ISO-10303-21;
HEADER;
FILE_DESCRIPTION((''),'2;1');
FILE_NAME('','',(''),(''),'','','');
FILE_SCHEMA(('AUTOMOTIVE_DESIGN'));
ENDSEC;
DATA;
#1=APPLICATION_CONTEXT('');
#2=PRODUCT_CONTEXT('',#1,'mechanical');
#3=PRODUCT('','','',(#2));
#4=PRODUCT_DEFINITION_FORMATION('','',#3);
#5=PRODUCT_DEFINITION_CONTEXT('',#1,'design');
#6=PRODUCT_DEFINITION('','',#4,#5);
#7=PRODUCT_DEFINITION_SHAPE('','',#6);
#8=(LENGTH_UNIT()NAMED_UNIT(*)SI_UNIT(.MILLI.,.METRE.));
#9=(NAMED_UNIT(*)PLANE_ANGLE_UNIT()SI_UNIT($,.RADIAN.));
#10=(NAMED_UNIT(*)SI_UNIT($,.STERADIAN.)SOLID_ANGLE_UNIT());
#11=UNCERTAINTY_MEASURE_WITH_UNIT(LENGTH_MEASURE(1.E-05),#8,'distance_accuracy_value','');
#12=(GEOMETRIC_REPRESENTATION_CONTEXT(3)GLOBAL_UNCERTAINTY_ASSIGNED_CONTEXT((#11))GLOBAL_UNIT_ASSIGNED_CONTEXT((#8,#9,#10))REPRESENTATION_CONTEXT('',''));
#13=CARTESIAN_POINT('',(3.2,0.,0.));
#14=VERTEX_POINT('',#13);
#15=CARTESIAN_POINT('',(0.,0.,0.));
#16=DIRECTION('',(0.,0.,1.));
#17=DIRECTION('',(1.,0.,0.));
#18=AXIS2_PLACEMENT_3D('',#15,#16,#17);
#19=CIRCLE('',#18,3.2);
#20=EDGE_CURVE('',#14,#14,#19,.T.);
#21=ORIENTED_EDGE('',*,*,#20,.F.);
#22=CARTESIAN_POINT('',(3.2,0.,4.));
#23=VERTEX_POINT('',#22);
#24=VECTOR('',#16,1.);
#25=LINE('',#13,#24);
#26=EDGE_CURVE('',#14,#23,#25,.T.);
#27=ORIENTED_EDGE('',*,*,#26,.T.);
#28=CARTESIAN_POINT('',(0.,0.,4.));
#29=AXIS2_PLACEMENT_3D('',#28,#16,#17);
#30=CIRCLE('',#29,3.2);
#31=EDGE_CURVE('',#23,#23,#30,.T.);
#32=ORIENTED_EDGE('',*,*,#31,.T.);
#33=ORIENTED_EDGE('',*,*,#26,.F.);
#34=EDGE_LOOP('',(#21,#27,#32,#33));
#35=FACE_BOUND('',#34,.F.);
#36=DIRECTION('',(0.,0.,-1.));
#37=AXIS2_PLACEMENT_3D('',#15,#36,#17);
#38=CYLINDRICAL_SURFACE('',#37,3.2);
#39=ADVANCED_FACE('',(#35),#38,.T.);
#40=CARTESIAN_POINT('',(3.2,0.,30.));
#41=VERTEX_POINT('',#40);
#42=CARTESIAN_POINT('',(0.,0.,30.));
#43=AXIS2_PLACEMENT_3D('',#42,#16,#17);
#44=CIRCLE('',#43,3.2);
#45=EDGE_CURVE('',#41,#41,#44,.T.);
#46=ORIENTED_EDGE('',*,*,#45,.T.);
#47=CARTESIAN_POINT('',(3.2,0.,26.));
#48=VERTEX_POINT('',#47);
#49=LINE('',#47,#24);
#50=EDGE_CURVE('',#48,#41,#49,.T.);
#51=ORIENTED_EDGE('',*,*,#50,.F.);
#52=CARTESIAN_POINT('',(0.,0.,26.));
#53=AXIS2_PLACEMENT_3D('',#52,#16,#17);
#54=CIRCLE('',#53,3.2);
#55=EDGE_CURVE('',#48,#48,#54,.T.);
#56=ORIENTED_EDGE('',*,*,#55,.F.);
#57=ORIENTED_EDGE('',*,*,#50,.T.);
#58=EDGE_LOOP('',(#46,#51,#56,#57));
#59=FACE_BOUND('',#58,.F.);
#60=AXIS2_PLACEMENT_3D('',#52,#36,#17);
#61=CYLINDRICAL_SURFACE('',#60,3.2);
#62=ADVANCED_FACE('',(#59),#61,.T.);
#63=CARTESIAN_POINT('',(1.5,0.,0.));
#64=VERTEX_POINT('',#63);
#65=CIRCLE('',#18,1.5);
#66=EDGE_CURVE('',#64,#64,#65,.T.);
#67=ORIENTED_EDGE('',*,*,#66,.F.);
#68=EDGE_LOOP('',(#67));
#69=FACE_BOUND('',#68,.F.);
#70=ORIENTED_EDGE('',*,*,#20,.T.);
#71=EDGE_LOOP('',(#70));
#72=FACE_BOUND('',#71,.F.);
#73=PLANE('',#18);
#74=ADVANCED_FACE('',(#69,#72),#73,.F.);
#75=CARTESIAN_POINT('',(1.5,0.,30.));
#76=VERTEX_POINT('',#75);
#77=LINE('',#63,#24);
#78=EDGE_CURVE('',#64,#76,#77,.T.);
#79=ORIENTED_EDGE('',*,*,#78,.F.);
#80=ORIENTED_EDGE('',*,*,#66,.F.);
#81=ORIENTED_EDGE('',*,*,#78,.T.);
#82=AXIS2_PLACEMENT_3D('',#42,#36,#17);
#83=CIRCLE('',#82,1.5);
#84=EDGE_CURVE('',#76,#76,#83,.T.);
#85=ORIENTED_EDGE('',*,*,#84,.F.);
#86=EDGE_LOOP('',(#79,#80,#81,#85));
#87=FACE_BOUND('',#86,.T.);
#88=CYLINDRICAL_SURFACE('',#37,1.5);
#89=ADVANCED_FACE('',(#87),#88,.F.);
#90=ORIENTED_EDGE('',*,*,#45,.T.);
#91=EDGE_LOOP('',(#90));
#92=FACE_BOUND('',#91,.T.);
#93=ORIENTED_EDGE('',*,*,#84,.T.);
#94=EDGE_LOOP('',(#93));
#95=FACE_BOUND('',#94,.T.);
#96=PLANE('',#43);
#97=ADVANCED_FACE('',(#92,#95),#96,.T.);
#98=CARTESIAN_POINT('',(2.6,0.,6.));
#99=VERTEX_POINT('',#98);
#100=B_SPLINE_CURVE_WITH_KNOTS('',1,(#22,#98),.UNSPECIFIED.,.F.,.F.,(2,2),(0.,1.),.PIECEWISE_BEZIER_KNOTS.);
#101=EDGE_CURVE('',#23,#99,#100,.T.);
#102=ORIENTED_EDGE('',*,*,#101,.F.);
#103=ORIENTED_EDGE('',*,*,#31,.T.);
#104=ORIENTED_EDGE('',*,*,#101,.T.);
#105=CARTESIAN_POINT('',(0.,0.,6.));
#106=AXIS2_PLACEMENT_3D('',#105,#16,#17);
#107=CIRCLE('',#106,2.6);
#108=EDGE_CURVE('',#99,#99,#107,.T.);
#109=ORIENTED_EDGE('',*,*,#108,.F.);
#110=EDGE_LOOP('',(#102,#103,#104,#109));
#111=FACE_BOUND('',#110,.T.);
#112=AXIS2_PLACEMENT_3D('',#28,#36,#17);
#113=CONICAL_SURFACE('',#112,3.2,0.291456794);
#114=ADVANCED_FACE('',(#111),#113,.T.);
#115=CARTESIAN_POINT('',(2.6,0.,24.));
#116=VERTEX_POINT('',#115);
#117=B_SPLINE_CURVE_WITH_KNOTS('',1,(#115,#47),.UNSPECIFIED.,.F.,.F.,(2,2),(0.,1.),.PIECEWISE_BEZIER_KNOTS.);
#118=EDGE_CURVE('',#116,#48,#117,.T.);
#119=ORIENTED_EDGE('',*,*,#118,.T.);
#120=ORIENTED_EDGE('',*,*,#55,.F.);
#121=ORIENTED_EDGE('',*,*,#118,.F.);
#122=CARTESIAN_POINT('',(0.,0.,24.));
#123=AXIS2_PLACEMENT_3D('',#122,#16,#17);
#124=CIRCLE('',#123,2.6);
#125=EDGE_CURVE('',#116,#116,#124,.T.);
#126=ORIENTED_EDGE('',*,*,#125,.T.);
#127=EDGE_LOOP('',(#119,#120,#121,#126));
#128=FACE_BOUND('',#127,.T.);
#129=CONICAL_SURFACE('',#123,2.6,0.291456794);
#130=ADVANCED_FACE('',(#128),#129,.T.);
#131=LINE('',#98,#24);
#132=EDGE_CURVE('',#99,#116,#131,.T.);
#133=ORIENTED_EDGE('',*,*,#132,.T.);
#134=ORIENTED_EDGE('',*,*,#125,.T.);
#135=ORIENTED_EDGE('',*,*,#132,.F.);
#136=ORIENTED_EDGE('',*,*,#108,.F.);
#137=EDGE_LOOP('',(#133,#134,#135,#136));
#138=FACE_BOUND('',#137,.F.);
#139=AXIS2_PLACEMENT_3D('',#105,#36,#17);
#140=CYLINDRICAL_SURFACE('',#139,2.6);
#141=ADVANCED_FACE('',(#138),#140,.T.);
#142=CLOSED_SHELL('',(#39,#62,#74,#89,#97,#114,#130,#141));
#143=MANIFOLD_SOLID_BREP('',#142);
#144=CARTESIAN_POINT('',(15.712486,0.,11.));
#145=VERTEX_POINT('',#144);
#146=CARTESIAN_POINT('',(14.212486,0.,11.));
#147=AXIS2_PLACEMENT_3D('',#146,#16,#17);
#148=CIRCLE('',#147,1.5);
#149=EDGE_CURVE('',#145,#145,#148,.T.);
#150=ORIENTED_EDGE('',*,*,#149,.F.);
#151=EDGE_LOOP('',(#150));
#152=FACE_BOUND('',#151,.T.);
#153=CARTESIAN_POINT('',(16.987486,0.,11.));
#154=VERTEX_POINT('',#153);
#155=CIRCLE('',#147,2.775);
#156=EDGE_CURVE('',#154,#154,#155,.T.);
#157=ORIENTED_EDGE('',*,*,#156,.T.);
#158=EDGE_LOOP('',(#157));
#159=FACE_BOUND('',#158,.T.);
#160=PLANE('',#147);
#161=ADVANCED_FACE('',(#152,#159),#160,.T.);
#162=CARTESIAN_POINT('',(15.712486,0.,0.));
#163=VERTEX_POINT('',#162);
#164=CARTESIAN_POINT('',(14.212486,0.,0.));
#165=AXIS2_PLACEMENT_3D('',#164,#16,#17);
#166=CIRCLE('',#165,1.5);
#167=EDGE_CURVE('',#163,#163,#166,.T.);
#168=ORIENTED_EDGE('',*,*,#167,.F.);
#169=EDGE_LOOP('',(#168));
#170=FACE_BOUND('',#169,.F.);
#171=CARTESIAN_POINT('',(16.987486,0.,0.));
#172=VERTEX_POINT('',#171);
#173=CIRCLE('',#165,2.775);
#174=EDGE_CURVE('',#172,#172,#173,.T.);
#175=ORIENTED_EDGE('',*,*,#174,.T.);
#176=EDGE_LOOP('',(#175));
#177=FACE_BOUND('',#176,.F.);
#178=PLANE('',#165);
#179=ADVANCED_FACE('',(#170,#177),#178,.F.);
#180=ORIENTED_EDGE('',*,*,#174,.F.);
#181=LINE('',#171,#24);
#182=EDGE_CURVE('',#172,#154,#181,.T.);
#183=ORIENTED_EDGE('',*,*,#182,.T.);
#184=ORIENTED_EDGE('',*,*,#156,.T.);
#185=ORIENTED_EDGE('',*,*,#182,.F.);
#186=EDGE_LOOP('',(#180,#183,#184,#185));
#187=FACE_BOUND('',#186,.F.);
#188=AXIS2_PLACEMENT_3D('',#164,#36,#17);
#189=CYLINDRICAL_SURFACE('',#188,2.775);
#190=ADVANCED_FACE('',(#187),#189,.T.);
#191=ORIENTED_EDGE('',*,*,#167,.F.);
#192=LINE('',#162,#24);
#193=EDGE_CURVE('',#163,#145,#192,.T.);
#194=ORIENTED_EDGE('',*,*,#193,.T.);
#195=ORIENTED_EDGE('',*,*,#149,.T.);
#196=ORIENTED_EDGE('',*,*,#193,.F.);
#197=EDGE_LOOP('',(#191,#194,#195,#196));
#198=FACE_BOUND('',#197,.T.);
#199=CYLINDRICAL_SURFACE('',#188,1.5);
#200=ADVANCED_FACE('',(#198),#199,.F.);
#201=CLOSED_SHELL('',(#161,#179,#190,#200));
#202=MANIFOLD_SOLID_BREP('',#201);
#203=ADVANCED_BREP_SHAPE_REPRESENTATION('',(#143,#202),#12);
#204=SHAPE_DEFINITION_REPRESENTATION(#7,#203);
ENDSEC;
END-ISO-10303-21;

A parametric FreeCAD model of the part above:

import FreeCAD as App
import Part
import Sketcher

doc = App.newDocument("Part")
params = doc.addObject("Spreadsheet::Sheet", "Params")
for row, (alias, value) in enumerate([
    ("sketch1_diameter", "6.4 mm"),
    ("pad1_length", "4 mm"),
    ("sketch2_diameter", "6.4 mm"),
    ("sketch3_diameter", "5.2 mm"),
    ("sketch4_diameter", "5.2 mm"),
    ("pad2_length", "18 mm"),
    ("sketch5_diameter", "5.2 mm"),
    ("sketch6_diameter", "6.4 mm"),
    ("sketch7_diameter", "6.4 mm"),
    ("pad3_length", "4 mm"),
    ("sketch8_diameter", "3 mm"),
    ("pocket1_length", "50 mm"),
    ("sketch9_diameter", "3 mm"),
    ("sketch9_diameter2", "5.55 mm"),
    ("pad4_length", "11 mm"),
], start=1):
    params.set(f"A{row}", alias)
    params.set(f"B{row}", "=" + value)
    params.setAlias(f"B{row}", alias)

body = doc.addObject("PartDesign::Body", "Body")

sketch1 = doc.addObject("Sketcher::SketchObject", "Sketch")
body.addObject(sketch1)
sketch1.AttachmentSupport = (doc.XY_Plane, [""])
sketch1.MapMode = "FlatFace"
sketch1.addGeometry(Part.Circle(App.Vector(0, 0, 0), App.Vector(0, 0, 1), 3.2), False)
sketch1.addConstraint(Sketcher.Constraint("Coincident", 0, 3, -1, 1))
sketch1.addConstraint(Sketcher.Constraint("Diameter", 0, 6.4))
sketch1.setExpression("Constraints[1]", "Params.sketch1_diameter")
pad1 = doc.addObject("PartDesign::Pad", "Pad")
body.addObject(pad1)
pad1.Profile = sketch1
pad1.setExpression("Length", "Params.pad1_length")

sketch2 = doc.addObject("Sketcher::SketchObject", "Sketch001")
body.addObject(sketch2)
sketch2.AttachmentSupport = (doc.XY_Plane, [""])
sketch2.MapMode = "FlatFace"
sketch2.AttachmentOffset = App.Placement(App.Vector(0, 0, 4), App.Rotation())
sketch2.addGeometry(Part.Circle(App.Vector(0, 0, 0), App.Vector(0, 0, 1), 3.2), False)
sketch2.addConstraint(Sketcher.Constraint("Coincident", 0, 3, -1, 1))
sketch2.addConstraint(Sketcher.Constraint("Diameter", 0, 6.4))
sketch2.setExpression("Constraints[1]", "Params.sketch2_diameter")

sketch3 = doc.addObject("Sketcher::SketchObject", "Sketch002")
body.addObject(sketch3)
sketch3.AttachmentSupport = (doc.XY_Plane, [""])
sketch3.MapMode = "FlatFace"
sketch3.AttachmentOffset = App.Placement(App.Vector(0, 0, 6), App.Rotation())
sketch3.addGeometry(Part.Circle(App.Vector(0, 0, 0), App.Vector(0, 0, 1), 2.6), False)
sketch3.addConstraint(Sketcher.Constraint("Coincident", 0, 3, -1, 1))
sketch3.addConstraint(Sketcher.Constraint("Diameter", 0, 5.2))
sketch3.setExpression("Constraints[1]", "Params.sketch3_diameter")

additiveloft = doc.addObject("PartDesign::AdditiveLoft", "AdditiveLoft")
body.addObject(additiveloft)
additiveloft.Profile = sketch2
additiveloft.Sections = [sketch3]

sketch4 = doc.addObject("Sketcher::SketchObject", "Sketch003")
body.addObject(sketch4)
sketch4.AttachmentSupport = (doc.XY_Plane, [""])
sketch4.MapMode = "FlatFace"
sketch4.AttachmentOffset = App.Placement(App.Vector(0, 0, 6), App.Rotation())
sketch4.addGeometry(Part.Circle(App.Vector(0, 0, 0), App.Vector(0, 0, 1), 2.6), False)
sketch4.addConstraint(Sketcher.Constraint("Coincident", 0, 3, -1, 1))
sketch4.addConstraint(Sketcher.Constraint("Diameter", 0, 5.2))
sketch4.setExpression("Constraints[1]", "Params.sketch4_diameter")
pad2 = doc.addObject("PartDesign::Pad", "Pad001")
body.addObject(pad2)
pad2.Profile = sketch4
pad2.setExpression("Length", "Params.pad2_length")

sketch5 = doc.addObject("Sketcher::SketchObject", "Sketch004")
body.addObject(sketch5)
sketch5.AttachmentSupport = (doc.XY_Plane, [""])
sketch5.MapMode = "FlatFace"
sketch5.AttachmentOffset = App.Placement(App.Vector(0, 0, 24), App.Rotation())
sketch5.addGeometry(Part.Circle(App.Vector(0, 0, 0), App.Vector(0, 0, 1), 2.6), False)
sketch5.addConstraint(Sketcher.Constraint("Coincident", 0, 3, -1, 1))
sketch5.addConstraint(Sketcher.Constraint("Diameter", 0, 5.2))
sketch5.setExpression("Constraints[1]", "Params.sketch5_diameter")

sketch6 = doc.addObject("Sketcher::SketchObject", "Sketch005")
body.addObject(sketch6)
sketch6.AttachmentSupport = (doc.XY_Plane, [""])
sketch6.MapMode = "FlatFace"
sketch6.AttachmentOffset = App.Placement(App.Vector(0, 0, 26), App.Rotation())
sketch6.addGeometry(Part.Circle(App.Vector(0, 0, 0), App.Vector(0, 0, 1), 3.2), False)
sketch6.addConstraint(Sketcher.Constraint("Coincident", 0, 3, -1, 1))
sketch6.addConstraint(Sketcher.Constraint("Diameter", 0, 6.4))
sketch6.setExpression("Constraints[1]", "Params.sketch6_diameter")

additiveloft2 = doc.addObject("PartDesign::AdditiveLoft", "AdditiveLoft001")
body.addObject(additiveloft2)
additiveloft2.Profile = sketch5
additiveloft2.Sections = [sketch6]

sketch7 = doc.addObject("Sketcher::SketchObject", "Sketch006")
body.addObject(sketch7)
sketch7.AttachmentSupport = (doc.XY_Plane, [""])
sketch7.MapMode = "FlatFace"
sketch7.AttachmentOffset = App.Placement(App.Vector(0, 0, 26), App.Rotation())
sketch7.addGeometry(Part.Circle(App.Vector(0, 0, 0), App.Vector(0, 0, 1), 3.2), False)
sketch7.addConstraint(Sketcher.Constraint("Coincident", 0, 3, -1, 1))
sketch7.addConstraint(Sketcher.Constraint("Diameter", 0, 6.4))
sketch7.setExpression("Constraints[1]", "Params.sketch7_diameter")
pad3 = doc.addObject("PartDesign::Pad", "Pad002")
body.addObject(pad3)
pad3.Profile = sketch7
pad3.setExpression("Length", "Params.pad3_length")

sketch8 = doc.addObject("Sketcher::SketchObject", "Sketch007")
body.addObject(sketch8)
sketch8.AttachmentSupport = (doc.XY_Plane, [""])
sketch8.MapMode = "FlatFace"
sketch8.addGeometry(Part.Circle(App.Vector(0, 0, 0), App.Vector(0, 0, 1), 1.5), False)
sketch8.addConstraint(Sketcher.Constraint("Coincident", 0, 3, -1, 1))
sketch8.addConstraint(Sketcher.Constraint("Diameter", 0, 3.0))
sketch8.setExpression("Constraints[1]", "Params.sketch8_diameter")
pocket1 = doc.addObject("PartDesign::Pocket", "Pocket")
body.addObject(pocket1)
pocket1.Profile = sketch8
pocket1.setExpression("Length", "Params.pocket1_length")
pocket1.Reversed = True
body2 = doc.addObject("PartDesign::Body", "Body001")

sketch9 = doc.addObject("Sketcher::SketchObject", "Sketch008")
body2.addObject(sketch9)
sketch9.AttachmentSupport = (doc.getObject("XY_Plane001"), [""])
sketch9.MapMode = "FlatFace"
sketch9.addGeometry(Part.Circle(App.Vector(14.212486, 0, 0), App.Vector(0, 0, 1), 2.775), False)
sketch9.addGeometry(Part.Circle(App.Vector(14.212486, 0, 0), App.Vector(0, 0, 1), 1.5), False)
sketch9.addConstraint(Sketcher.Constraint("Coincident", 1, 3, 0, 3))
sketch9.addConstraint(Sketcher.Constraint("PointOnObject", 0, 3, -1))
sketch9.addConstraint(Sketcher.Constraint("Diameter", 1, 3.0))
sketch9.addConstraint(Sketcher.Constraint("Diameter", 0, 5.55))
sketch9.addConstraint(Sketcher.Constraint("DistanceX", -1, 1, 0, 3, 14.212486))
sketch9.setExpression("Constraints[2]", "Params.sketch9_diameter")
sketch9.setExpression("Constraints[3]", "Params.sketch9_diameter2")
pad4 = doc.addObject("PartDesign::Pad", "Pad003")
body2.addObject(pad4)
pad4.Profile = sketch9
pad4.setExpression("Length", "Params.pad4_length")

doc.recompute()
